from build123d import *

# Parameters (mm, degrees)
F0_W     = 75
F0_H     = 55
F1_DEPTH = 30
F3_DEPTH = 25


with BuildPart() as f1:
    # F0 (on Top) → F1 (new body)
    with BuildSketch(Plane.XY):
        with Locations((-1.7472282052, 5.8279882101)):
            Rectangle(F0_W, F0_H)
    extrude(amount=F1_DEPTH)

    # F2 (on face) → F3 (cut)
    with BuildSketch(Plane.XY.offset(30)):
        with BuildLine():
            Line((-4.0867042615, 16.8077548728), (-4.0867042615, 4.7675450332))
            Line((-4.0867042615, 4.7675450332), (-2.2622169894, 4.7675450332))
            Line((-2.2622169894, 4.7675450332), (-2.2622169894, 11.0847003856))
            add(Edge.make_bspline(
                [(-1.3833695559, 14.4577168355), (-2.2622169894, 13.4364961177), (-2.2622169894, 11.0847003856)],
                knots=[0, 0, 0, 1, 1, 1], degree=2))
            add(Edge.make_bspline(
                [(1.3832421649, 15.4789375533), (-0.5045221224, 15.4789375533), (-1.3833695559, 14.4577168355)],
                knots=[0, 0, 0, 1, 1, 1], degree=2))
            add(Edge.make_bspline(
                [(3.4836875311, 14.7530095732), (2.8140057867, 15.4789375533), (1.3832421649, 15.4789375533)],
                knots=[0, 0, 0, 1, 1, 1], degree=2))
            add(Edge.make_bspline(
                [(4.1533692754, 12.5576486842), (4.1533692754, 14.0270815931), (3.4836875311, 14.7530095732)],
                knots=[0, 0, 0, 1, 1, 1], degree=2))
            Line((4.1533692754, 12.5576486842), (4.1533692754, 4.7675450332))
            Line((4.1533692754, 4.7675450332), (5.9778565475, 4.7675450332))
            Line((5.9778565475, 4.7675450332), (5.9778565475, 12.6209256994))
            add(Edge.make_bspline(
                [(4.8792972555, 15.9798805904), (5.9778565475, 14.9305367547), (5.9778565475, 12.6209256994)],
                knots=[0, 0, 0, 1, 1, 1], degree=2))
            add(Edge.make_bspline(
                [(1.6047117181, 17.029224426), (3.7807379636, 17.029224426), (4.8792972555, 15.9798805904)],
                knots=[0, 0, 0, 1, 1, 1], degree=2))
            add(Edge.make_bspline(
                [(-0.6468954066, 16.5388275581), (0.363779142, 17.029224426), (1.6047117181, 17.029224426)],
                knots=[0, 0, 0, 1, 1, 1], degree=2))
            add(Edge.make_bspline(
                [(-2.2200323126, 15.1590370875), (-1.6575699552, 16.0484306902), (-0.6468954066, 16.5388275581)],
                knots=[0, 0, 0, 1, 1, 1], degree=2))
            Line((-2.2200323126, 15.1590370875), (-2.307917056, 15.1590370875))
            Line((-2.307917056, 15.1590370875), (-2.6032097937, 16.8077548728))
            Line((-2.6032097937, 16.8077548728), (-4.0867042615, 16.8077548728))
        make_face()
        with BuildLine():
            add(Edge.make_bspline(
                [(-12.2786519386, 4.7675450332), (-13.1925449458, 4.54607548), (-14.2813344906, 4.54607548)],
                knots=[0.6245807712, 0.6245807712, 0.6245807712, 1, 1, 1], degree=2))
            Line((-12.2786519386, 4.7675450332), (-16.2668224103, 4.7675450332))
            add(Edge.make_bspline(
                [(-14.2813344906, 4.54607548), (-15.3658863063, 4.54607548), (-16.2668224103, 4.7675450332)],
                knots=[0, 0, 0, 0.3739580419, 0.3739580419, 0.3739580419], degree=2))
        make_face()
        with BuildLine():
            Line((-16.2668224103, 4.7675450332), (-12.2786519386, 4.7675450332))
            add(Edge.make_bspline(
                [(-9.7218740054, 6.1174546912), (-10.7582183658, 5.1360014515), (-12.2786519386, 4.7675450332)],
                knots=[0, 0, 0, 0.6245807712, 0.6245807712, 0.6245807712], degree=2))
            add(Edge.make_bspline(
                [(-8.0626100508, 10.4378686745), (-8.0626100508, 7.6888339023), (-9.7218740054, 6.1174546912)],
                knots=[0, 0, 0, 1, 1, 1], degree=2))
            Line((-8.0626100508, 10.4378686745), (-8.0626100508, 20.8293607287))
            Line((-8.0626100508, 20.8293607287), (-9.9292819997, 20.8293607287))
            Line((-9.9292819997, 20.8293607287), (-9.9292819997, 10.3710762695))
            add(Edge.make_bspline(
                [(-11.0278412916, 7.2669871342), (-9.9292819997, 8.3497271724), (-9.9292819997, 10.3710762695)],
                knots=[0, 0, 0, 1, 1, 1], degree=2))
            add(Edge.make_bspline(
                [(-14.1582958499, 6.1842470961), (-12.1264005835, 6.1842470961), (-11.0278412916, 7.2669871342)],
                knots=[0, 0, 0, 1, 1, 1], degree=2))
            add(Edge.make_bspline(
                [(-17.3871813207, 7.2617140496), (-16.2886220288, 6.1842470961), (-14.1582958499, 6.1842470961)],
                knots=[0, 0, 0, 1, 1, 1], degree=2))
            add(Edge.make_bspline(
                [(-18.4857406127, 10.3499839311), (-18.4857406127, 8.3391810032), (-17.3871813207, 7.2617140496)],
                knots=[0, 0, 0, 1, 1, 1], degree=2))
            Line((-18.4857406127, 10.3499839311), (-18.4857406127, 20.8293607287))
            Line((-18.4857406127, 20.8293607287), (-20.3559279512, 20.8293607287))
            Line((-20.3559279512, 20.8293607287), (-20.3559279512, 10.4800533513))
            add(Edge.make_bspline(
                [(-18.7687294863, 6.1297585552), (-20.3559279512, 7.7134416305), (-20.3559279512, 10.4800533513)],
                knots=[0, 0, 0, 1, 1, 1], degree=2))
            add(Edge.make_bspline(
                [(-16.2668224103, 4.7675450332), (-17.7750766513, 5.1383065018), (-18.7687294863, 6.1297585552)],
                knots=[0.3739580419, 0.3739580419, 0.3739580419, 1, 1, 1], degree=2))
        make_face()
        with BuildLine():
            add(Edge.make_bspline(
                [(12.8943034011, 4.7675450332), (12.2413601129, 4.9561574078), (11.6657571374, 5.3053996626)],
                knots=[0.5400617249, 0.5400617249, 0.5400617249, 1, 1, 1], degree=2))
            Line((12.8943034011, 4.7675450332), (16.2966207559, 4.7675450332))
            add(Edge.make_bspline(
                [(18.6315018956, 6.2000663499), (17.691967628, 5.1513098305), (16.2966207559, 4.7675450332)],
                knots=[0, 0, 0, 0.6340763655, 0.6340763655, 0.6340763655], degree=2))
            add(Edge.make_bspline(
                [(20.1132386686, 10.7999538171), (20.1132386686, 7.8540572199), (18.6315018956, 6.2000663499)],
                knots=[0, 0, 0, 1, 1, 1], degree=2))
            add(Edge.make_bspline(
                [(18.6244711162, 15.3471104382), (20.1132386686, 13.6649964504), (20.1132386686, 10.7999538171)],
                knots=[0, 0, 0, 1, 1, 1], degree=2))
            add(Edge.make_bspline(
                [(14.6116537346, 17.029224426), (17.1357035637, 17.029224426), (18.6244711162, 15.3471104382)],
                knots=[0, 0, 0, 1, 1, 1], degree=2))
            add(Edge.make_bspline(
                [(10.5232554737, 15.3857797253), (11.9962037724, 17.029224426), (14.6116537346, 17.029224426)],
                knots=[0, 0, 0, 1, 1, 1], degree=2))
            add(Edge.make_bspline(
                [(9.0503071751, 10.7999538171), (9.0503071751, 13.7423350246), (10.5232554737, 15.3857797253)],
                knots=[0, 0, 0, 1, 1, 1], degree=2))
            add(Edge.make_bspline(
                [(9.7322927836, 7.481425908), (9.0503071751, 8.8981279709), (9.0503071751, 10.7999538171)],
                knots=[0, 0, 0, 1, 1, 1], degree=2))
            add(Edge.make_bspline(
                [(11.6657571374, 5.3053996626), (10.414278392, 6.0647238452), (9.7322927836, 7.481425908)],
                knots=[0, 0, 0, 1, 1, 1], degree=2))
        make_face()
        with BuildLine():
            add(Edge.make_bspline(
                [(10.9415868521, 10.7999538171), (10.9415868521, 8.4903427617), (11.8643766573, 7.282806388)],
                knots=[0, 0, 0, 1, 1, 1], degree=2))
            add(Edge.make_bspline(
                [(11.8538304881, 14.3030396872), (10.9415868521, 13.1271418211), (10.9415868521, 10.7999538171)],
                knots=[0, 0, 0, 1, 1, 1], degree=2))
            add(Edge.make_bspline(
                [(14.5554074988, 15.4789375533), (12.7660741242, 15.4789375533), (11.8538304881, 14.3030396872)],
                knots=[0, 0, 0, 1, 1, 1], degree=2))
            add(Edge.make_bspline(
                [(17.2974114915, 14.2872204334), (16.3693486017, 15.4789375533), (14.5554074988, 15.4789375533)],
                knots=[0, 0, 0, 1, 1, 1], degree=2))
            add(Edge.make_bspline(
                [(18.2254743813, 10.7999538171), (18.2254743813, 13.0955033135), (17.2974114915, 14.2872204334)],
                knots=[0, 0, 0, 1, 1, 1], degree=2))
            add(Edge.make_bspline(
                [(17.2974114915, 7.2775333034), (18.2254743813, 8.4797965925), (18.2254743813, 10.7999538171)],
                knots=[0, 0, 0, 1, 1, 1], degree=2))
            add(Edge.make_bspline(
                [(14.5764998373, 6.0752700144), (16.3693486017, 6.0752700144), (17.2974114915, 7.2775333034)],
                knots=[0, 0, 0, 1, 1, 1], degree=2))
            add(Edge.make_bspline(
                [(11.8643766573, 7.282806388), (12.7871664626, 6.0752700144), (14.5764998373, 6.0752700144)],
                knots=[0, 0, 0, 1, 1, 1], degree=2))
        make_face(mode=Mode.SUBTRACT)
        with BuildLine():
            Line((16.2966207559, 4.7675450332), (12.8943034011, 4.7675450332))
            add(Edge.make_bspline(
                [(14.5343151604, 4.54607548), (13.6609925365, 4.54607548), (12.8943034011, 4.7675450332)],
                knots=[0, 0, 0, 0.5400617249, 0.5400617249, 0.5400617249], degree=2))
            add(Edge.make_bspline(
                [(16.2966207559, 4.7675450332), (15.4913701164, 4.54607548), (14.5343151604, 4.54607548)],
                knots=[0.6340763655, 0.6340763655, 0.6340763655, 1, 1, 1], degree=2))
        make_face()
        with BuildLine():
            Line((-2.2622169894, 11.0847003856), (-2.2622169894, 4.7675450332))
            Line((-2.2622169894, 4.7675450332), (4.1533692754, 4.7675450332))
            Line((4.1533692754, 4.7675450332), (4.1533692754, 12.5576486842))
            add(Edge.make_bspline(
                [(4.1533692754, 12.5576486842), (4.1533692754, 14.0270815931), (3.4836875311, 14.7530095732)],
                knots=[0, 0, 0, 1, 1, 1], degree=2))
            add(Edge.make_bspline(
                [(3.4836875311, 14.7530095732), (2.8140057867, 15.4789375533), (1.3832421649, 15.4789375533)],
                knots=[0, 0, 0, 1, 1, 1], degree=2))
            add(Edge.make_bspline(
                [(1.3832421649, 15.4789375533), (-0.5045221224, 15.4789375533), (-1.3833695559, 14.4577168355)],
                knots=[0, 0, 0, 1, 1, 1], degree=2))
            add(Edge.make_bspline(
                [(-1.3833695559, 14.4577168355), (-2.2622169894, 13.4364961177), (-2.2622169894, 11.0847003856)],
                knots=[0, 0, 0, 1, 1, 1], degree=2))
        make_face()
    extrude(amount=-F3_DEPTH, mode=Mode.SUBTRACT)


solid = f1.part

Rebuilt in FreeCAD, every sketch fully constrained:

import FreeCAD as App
import Part
import Sketcher
from FreeCAD import Vector
Q = App.Units.Quantity

doc = App.newDocument("Part")
body = doc.addObject("PartDesign::Body", "Body")

sketch1 = body.newObject("Sketcher::SketchObject", "Sketch")
sketch1.AttachmentSupport = (doc.getObject("XY_Plane"), [""])
sketch1.MapMode = "FlatFace"
sketch1.addGeometry(Part.LineSegment(Vector(-39.247228, 33.327988, 0), Vector(-39.247228, -21.672012, 0)), False)
sketch1.addGeometry(Part.LineSegment(Vector(-39.247228, -21.672012, 0), Vector(35.752772, -21.672012, 0)), False)
sketch1.addGeometry(Part.LineSegment(Vector(35.752772, -21.672012, 0), Vector(35.752772, 33.327988, 0)), False)
sketch1.addGeometry(Part.LineSegment(Vector(35.752772, 33.327988, 0), Vector(-39.247228, 33.327988, 0)), False)
sketch1.addConstraint(Sketcher.Constraint("Coincident", 0, 2, 1, 1))
sketch1.addConstraint(Sketcher.Constraint("Coincident", 1, 2, 2, 1))
sketch1.addConstraint(Sketcher.Constraint("Coincident", 2, 2, 3, 1))
sketch1.addConstraint(Sketcher.Constraint("Coincident", 3, 2, 0, 1))
sketch1.addConstraint(Sketcher.Constraint("Vertical", 0))
sketch1.addConstraint(Sketcher.Constraint("Horizontal", 1))
sketch1.addConstraint(Sketcher.Constraint("Vertical", 2))
sketch1.addConstraint(Sketcher.Constraint("Horizontal", 3))
sketch1.addConstraint(Sketcher.Constraint("DistanceX", 1, 1, 1, 2, Q("75 mm")))
sketch1.addConstraint(Sketcher.Constraint("DistanceY", 0, 2, 0, 1, Q("55 mm")))
sketch1.addConstraint(Sketcher.Constraint("DistanceX", 0, 2, -1, 1, Q("39.247228 mm")))
sketch1.addConstraint(Sketcher.Constraint("DistanceY", 0, 2, -1, 1, Q("21.672012 mm")))
pad1 = body.newObject("PartDesign::Pad", "Pad")
pad1.Profile = sketch1
pad1.Length = 30

sketch2 = body.newObject("Sketcher::SketchObject", "Sketch001")
sketch2.AttachmentSupport = (doc.getObject("XY_Plane"), [""])
sketch2.MapMode = "FlatFace"
sketch2.AttachmentOffset = App.Placement(Vector(0, 0, 30), App.Rotation())
sketch2.addGeometry(Part.LineSegment(Vector(-4.086704, 16.807755, 0), Vector(-4.086704, 4.767545, 0)), False)
sketch2.addGeometry(Part.LineSegment(Vector(-4.086704, 4.767545, 0), Vector(5.977857, 4.767545, 0)), False)
sketch2.addGeometry(Part.LineSegment(Vector(5.977857, 4.767545, 0), Vector(5.977857, 12.620926, 0)), False)
sketch2.addGeometry(Part.BSplineCurve([Vector(4.879297, 15.979881, 0), Vector(5.977857, 14.930537, 0), Vector(5.977857, 12.620926, 0)], [3, 3], [0, 1], False, 2, [1, 1, 1], False), False)
sketch2.addGeometry(Part.BSplineCurve([Vector(-2.220032, 15.159037, 0), Vector(-1.65757, 16.048431, 0), Vector(0.363779, 17.029224, 0), Vector(3.780738, 17.029224, 0), Vector(4.879297, 15.979881, 0)], [3, 1, 1, 3], [0, 1, 2, 3.753541077], False, 2, [1, 1, 1, 1, 1], False), False)
sketch2.addGeometry(Part.LineSegment(Vector(-2.220032, 15.159037, 0), Vector(-2.307917, 15.159037, 0)), False)
sketch2.addGeometry(Part.LineSegment(Vector(-2.307917, 15.159037, 0), Vector(-2.60321, 16.807755, 0)), False)
sketch2.addGeometry(Part.LineSegment(Vector(-2.60321, 16.807755, 0), Vector(-4.086704, 16.807755, 0)), False)
sketch2.addGeometry(Part.BSplineCurve([Vector(-12.278652, 4.767545, 0), Vector(-13.192545, 4.546075, 0), Vector(-15.365886, 4.546075, 0), Vector(-16.266822, 4.767545, 0)], [3, 1, 3], [0.624580771, 1, 1.373958042], False, 2, [1, 1, 1, 1], False), False)
sketch2.addGeometry(Part.BSplineCurve([Vector(-9.721874, 6.117455, 0), Vector(-10.758218, 5.136001, 0), Vector(-12.278652, 4.767545, 0)], [3, 3], [0, 0.624580771], False, 2, [1, 1, 1], False), False)
sketch2.addGeometry(Part.BSplineCurve([Vector(-8.06261, 10.437869, 0), Vector(-8.06261, 7.688834, 0), Vector(-9.721874, 6.117455, 0)], [3, 3], [0, 1], False, 2, [1, 1, 1], False), False)
sketch2.addGeometry(Part.LineSegment(Vector(-8.06261, 10.437869, 0), Vector(-8.06261, 20.829361, 0)), False)
sketch2.addGeometry(Part.LineSegment(Vector(-8.06261, 20.829361, 0), Vector(-9.929282, 20.829361, 0)), False)
sketch2.addGeometry(Part.LineSegment(Vector(-9.929282, 20.829361, 0), Vector(-9.929282, 10.371076, 0)), False)
sketch2.addGeometry(Part.BSplineCurve([Vector(-11.027841, 7.266987, 0), Vector(-9.929282, 8.349727, 0), Vector(-9.929282, 10.371076, 0)], [3, 3], [0, 1], False, 2, [1, 1, 1], False), False)
sketch2.addGeometry(Part.BSplineCurve([Vector(-18.485741, 10.349984, 0), Vector(-18.485741, 8.339181, 0), Vector(-16.288622, 6.184247, 0), Vector(-12.126401, 6.184247, 0), Vector(-11.027841, 7.266987, 0)], [3, 1, 1, 3], [0, 1, 2, 2.953795379], False, 2, [1, 1, 1, 1, 1], False), False)
sketch2.addGeometry(Part.LineSegment(Vector(-18.485741, 10.349984, 0), Vector(-18.485741, 20.829361, 0)), False)
sketch2.addGeometry(Part.LineSegment(Vector(-18.485741, 20.829361, 0), Vector(-20.355928, 20.829361, 0)), False)
sketch2.addGeometry(Part.LineSegment(Vector(-20.355928, 20.829361, 0), Vector(-20.355928, 10.480053, 0)), False)
sketch2.addGeometry(Part.BSplineCurve([Vector(-18.768729, 6.129759, 0), Vector(-20.355928, 7.713442, 0), Vector(-20.355928, 10.480053, 0)], [3, 3], [0, 1], False, 2, [1, 1, 1], False), False)
sketch2.addGeometry(Part.BSplineCurve([Vector(-16.266822, 4.767545, 0), Vector(-17.775077, 5.138307, 0), Vector(-18.768729, 6.129759, 0)], [3, 3], [0.373958042, 1], False, 2, [1, 1, 1], False), False)
sketch2.addGeometry(Part.BSplineCurve([Vector(12.894303, 4.767545, 0), Vector(12.24136, 4.956157, 0), Vector(11.665757, 5.3054, 0)], [3, 3], [0.540061725, 1], False, 2, [1, 1, 1], False), False)
sketch2.addGeometry(Part.BSplineCurve([Vector(16.296621, 4.767545, 0), Vector(15.49137, 4.546075, 0), Vector(13.660993, 4.546075, 0), Vector(12.894303, 4.767545, 0)], [3, 1, 3], [0.634076366, 1, 1.333909131], False, 2, [1, 1, 1, 1], False), False)
sketch2.addGeometry(Part.BSplineCurve([Vector(18.631502, 6.200066, 0), Vector(17.691968, 5.15131, 0), Vector(16.296621, 4.767545, 0)], [3, 3], [0, 0.634076366], False, 2, [1, 1, 1], False), False)
sketch2.addGeometry(Part.BSplineCurve([Vector(18.624471, 15.34711, 0), Vector(20.113239, 13.664996, 0), Vector(20.113239, 7.854057, 0), Vector(18.631502, 6.200066, 0)], [3, 1, 3], [0, 1, 2.028220859], False, 2, [1, 1, 1, 1], False), False)
sketch2.addGeometry(Part.BSplineCurve([Vector(10.523255, 15.38578, 0), Vector(11.996204, 17.029224, 0), Vector(17.135704, 17.029224, 0), Vector(18.624471, 15.34711, 0)], [3, 1, 3], [0, 1, 1.965053763], False, 2, [1, 1, 1, 1], False), False)
sketch2.addGeometry(Part.BSplineCurve([Vector(9.732293, 7.481426, 0), Vector(9.050307, 8.898128, 0), Vector(9.050307, 13.742335, 0), Vector(10.523255, 15.38578, 0)], [3, 1, 3], [0, 1, 2.547134935], False, 2, [1, 1, 1, 1], False), False)
sketch2.addGeometry(Part.BSplineCurve([Vector(11.665757, 5.3054, 0), Vector(10.414278, 6.064724, 0), Vector(9.732293, 7.481426, 0)], [3, 3], [0, 1], False, 2, [1, 1, 1], False), False)
sketch2.addGeometry(Part.BSplineCurve([Vector(17.297411, 7.277533, 0), Vector(18.225474, 8.479797, 0), Vector(18.225474, 13.095503, 0), Vector(16.369349, 15.478938, 0), Vector(12.766074, 15.478938, 0), Vector(11.85383, 14.30304, 0)], [3, 1, 1, 1, 3], [0, 1, 1.989393939, 2.978787879, 3.954759807], False, 2, [1, 1, 1, 1, 1, 1], False), False)
sketch2.addGeometry(Part.BSplineCurve([Vector(11.864377, 7.282806, 0), Vector(12.787166, 6.07527, 0), Vector(16.369349, 6.07527, 0), Vector(17.297411, 7.277533, 0)], [3, 1, 3], [0, 1, 2.001964637], False, 2, [1, 1, 1, 1], False), False)
sketch2.addGeometry(Part.BSplineCurve([Vector(11.85383, 14.30304, 0), Vector(10.941587, 13.127142, 0), Vector(10.941587, 8.490343, 0), Vector(11.864377, 7.282806, 0)], [3, 1, 3], [0, 1, 1.99244713], False, 2, [1, 1, 1, 1], False), False)
sketch2.addConstraint(Sketcher.Constraint("Block", 3))
sketch2.addConstraint(Sketcher.Constraint("Block", 4))
sketch2.addConstraint(Sketcher.Constraint("Block", 8))
sketch2.addConstraint(Sketcher.Constraint("Block", 9))
sketch2.addConstraint(Sketcher.Constraint("Block", 10))
sketch2.addConstraint(Sketcher.Constraint("Block", 14))
sketch2.addConstraint(Sketcher.Constraint("Block", 15))
sketch2.addConstraint(Sketcher.Constraint("Block", 19))
sketch2.addConstraint(Sketcher.Constraint("Block", 20))
sketch2.addConstraint(Sketcher.Constraint("Block", 21))
sketch2.addConstraint(Sketcher.Constraint("Block", 22))
sketch2.addConstraint(Sketcher.Constraint("Block", 23))
sketch2.addConstraint(Sketcher.Constraint("Block", 24))
sketch2.addConstraint(Sketcher.Constraint("Block", 25))
sketch2.addConstraint(Sketcher.Constraint("Block", 26))
sketch2.addConstraint(Sketcher.Constraint("Block", 27))
sketch2.addConstraint(Sketcher.Constraint("Block", 28))
sketch2.addConstraint(Sketcher.Constraint("Block", 29))
sketch2.addConstraint(Sketcher.Constraint("Block", 30))
sketch2.addConstraint(Sketcher.Constraint("Coincident", 0, 2, 1, 1))
sketch2.addConstraint(Sketcher.Constraint("Coincident", 1, 2, 2, 1))
sketch2.addConstraint(Sketcher.Constraint("Coincident", 2, 2, 3, 2))
sketch2.addConstraint(Sketcher.Constraint("Coincident", 4, 1, 5, 1))
sketch2.addConstraint(Sketcher.Constraint("Coincident", 5, 2, 6, 1))
sketch2.addConstraint(Sketcher.Constraint("Coincident", 6, 2, 7, 1))
sketch2.addConstraint(Sketcher.Constraint("Coincident", 7, 2, 0, 1))
sketch2.addConstraint(Sketcher.Constraint("Coincident", 10, 1, 11, 1))
sketch2.addConstraint(Sketcher.Constraint("Coincident", 11, 2, 12, 1))
sketch2.addConstraint(Sketcher.Constraint("Coincident", 12, 2, 13, 1))
sketch2.addConstraint(Sketcher.Constraint("Coincident", 13, 2, 14, 2))
sketch2.addConstraint(Sketcher.Constraint("Coincident", 15, 1, 16, 1))
sketch2.addConstraint(Sketcher.Constraint("Coincident", 16, 2, 17, 1))
sketch2.addConstraint(Sketcher.Constraint("Coincident", 17, 2, 18, 1))
sketch2.addConstraint(Sketcher.Constraint("Coincident", 18, 2, 19, 2))
sketch2.addConstraint(Sketcher.Constraint("Vertical", 0))
sketch2.addConstraint(Sketcher.Constraint("Horizontal", 1))
sketch2.addConstraint(Sketcher.Constraint("Vertical", 2))
sketch2.addConstraint(Sketcher.Constraint("Horizontal", 5))
sketch2.addConstraint(Sketcher.Constraint("Horizontal", 7))
sketch2.addConstraint(Sketcher.Constraint("Vertical", 11))
sketch2.addConstraint(Sketcher.Constraint("Horizontal", 12))
sketch2.addConstraint(Sketcher.Constraint("Vertical", 13))
sketch2.addConstraint(Sketcher.Constraint("Vertical", 16))
sketch2.addConstraint(Sketcher.Constraint("Horizontal", 17))
sketch2.addConstraint(Sketcher.Constraint("Vertical", 18))
sketch2.addConstraint(Sketcher.Constraint("Horizontal", 12, 2, 16, 2))
sketch2.addConstraint(Sketcher.Constraint("DistanceX", 1, 1, 1, 2, Q("10.064561 mm")))
sketch2.addConstraint(Sketcher.Constraint("DistanceY", 0, 2, 0, 1, Q("12.04021 mm")))
sketch2.addConstraint(Sketcher.Constraint("DistanceY", 2, 1, 2, 2, Q("7.853381 mm")))
sketch2.addConstraint(Sketcher.Constraint("DistanceX", 11, 2, 6, 2, Q("5.4594 mm")))
sketch2.addConstraint(Sketcher.Constraint("DistanceX", 5, 2, 5, 1, Q("0.087885 mm")))
sketch2.addConstraint(Sketcher.Constraint("DistanceY", 11, 1, 11, 2, Q("10.391492 mm")))
pocket1 = body.newObject("PartDesign::Pocket", "Pocket")
pocket1.Profile = sketch2
pocket1.Length = 25

doc.recompute()
